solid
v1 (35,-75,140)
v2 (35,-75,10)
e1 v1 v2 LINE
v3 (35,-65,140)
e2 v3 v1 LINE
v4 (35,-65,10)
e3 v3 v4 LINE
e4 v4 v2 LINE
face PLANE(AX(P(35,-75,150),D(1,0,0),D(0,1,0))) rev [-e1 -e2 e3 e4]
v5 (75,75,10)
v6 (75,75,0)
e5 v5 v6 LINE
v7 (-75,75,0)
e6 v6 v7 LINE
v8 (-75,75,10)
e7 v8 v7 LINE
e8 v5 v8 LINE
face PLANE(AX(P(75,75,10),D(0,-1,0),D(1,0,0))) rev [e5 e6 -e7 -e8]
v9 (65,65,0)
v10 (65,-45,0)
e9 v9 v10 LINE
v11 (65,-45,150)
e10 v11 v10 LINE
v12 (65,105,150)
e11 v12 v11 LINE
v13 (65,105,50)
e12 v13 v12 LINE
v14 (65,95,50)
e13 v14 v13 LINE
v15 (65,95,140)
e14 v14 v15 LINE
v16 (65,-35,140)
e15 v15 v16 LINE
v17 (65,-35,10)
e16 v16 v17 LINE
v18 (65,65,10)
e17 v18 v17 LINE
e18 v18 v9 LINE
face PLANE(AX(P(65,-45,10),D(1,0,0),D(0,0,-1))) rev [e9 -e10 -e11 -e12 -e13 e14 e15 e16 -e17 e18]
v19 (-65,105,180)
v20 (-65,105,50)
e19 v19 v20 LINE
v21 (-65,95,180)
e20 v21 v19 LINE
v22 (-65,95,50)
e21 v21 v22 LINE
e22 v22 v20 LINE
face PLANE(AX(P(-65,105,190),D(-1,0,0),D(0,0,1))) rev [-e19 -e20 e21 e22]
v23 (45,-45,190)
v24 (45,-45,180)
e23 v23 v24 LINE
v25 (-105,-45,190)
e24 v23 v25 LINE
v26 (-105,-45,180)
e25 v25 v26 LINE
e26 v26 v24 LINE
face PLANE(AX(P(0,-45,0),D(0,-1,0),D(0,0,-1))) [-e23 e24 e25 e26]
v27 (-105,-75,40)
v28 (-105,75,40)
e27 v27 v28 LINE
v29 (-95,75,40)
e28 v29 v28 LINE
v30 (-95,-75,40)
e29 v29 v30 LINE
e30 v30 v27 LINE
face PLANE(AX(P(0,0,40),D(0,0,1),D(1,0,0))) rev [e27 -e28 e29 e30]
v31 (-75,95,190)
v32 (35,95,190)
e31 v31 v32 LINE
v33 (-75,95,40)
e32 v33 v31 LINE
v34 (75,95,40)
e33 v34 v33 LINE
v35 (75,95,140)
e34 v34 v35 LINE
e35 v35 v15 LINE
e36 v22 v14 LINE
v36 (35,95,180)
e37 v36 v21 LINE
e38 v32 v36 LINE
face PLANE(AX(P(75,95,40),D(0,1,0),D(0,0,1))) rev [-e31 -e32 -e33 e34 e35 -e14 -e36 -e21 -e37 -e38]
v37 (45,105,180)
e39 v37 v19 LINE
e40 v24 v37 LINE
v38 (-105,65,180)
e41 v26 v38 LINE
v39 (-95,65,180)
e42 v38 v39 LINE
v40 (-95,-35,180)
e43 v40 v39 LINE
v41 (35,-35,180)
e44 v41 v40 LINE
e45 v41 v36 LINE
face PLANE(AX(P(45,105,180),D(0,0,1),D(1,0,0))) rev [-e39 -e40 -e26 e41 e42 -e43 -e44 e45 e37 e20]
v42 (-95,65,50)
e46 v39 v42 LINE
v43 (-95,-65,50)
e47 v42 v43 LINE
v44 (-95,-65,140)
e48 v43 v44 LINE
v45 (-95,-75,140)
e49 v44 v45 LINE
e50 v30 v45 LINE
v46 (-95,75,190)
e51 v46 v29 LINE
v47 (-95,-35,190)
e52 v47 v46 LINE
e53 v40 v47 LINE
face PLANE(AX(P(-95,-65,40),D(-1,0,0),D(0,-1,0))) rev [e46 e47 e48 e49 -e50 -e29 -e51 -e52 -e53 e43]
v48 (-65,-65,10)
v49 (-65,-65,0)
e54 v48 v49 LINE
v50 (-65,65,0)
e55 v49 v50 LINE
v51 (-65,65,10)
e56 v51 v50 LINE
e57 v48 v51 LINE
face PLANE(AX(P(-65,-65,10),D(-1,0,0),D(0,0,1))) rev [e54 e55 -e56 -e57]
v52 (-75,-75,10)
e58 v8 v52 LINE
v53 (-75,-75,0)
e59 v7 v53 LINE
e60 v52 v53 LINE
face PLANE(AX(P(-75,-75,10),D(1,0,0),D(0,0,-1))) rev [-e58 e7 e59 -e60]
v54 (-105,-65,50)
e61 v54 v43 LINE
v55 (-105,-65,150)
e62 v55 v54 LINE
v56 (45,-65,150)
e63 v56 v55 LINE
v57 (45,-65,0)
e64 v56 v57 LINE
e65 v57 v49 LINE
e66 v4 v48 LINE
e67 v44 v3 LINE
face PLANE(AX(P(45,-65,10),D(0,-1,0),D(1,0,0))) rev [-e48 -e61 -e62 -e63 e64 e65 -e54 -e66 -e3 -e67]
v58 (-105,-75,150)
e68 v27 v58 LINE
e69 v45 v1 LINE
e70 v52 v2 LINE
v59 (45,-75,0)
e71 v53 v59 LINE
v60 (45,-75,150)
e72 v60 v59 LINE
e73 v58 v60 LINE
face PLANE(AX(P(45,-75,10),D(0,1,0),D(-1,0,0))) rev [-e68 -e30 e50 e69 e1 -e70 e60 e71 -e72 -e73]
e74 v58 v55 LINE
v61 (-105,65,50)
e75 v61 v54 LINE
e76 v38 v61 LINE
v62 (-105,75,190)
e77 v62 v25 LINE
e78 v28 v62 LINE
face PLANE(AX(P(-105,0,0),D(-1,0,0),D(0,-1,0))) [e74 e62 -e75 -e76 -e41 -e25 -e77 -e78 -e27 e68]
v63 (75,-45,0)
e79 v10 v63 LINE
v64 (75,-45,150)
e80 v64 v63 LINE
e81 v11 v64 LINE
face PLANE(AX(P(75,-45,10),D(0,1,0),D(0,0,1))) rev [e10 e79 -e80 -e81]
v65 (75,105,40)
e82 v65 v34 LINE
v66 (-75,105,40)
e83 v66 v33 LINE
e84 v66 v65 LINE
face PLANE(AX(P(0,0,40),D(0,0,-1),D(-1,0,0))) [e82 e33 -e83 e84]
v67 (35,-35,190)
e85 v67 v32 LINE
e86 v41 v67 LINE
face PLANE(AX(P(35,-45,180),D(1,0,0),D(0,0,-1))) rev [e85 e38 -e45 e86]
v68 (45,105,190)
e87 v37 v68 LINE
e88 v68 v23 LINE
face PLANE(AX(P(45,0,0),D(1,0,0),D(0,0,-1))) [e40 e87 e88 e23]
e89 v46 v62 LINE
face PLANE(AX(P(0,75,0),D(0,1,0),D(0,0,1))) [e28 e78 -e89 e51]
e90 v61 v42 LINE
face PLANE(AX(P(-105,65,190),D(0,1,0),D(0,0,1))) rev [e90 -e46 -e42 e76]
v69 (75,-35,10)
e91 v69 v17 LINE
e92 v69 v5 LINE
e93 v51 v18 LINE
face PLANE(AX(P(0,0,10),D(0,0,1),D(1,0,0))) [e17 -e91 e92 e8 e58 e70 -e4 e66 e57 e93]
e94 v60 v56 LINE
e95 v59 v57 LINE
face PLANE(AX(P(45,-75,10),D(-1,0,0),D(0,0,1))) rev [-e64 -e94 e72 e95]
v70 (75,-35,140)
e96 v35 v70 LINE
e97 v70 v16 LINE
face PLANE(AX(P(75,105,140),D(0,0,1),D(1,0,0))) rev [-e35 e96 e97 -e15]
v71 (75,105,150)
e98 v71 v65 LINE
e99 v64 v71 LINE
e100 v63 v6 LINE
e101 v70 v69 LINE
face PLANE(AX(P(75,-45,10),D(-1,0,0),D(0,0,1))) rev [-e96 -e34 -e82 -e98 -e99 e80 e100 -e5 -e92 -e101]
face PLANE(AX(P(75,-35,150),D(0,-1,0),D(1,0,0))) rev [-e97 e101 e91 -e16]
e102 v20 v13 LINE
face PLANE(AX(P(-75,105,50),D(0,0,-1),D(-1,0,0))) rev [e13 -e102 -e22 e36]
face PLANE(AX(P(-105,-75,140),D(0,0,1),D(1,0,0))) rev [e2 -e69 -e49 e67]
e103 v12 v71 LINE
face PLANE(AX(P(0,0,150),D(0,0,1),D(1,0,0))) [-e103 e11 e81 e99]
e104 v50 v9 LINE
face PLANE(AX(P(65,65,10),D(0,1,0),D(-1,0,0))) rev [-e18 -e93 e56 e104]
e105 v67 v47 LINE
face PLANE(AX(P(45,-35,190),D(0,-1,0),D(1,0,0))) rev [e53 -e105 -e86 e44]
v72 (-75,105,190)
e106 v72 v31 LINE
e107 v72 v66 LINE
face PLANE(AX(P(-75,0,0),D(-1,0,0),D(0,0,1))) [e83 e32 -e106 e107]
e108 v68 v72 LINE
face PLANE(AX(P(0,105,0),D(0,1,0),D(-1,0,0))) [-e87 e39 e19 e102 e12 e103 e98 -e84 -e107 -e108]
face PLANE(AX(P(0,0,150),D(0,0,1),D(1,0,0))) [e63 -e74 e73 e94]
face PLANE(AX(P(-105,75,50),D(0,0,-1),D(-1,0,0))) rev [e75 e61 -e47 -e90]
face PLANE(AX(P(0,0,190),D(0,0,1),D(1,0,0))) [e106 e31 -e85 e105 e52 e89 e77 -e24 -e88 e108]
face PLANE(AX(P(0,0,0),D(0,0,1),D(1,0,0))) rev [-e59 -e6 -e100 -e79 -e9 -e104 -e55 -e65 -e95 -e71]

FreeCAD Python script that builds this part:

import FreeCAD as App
import Part
import Sketcher
Q = App.Units.Quantity

doc = App.newDocument("Part")
body = doc.addObject("PartDesign::Body", "Body")

# Sketch on XY plane
sketch1 = doc.addObject("Sketcher::SketchObject", "Sketch")
body.addObject(sketch1)
sketch1.AttachmentSupport = (doc.XY_Plane, [""])
sketch1.MapMode = "FlatFace"
sketch1.addGeometry([
    Part.LineSegment(App.Vector(-75, -75, 0), App.Vector(45, -75, 0)),  # 0
    Part.LineSegment(App.Vector(45, -75, 0), App.Vector(45, -65, 0)),  # 1
    Part.LineSegment(App.Vector(45, -65, 0), App.Vector(-65, -65, 0)),  # 2
    Part.LineSegment(App.Vector(-65, -65, 0), App.Vector(-65, 65, 0)),  # 3
    Part.LineSegment(App.Vector(-65, 65, 0), App.Vector(65, 65, 0)),  # 4
    Part.LineSegment(App.Vector(65, 65, 0), App.Vector(65, -45, 0)),  # 5
    Part.LineSegment(App.Vector(65, -45, 0), App.Vector(75, -45, 0)),  # 6
    Part.LineSegment(App.Vector(75, -45, 0), App.Vector(75, 75, 0)),  # 7
    Part.LineSegment(App.Vector(75, 75, 0), App.Vector(-75, 75, 0)),  # 8
    Part.LineSegment(App.Vector(-75, 75, 0), App.Vector(-75, -75, 0)),  # 9
], False)
sketch1.addConstraint([
    Sketcher.Constraint("Coincident", 0, 2, 1, 1),
    Sketcher.Constraint("Coincident", 1, 2, 2, 1),
    Sketcher.Constraint("Coincident", 2, 2, 3, 1),
    Sketcher.Constraint("Coincident", 3, 2, 4, 1),
    Sketcher.Constraint("Coincident", 4, 2, 5, 1),
    Sketcher.Constraint("Coincident", 5, 2, 6, 1),
    Sketcher.Constraint("Coincident", 6, 2, 7, 1),
    Sketcher.Constraint("Coincident", 7, 2, 8, 1),
    Sketcher.Constraint("Coincident", 8, 2, 9, 1),
    Sketcher.Constraint("Coincident", 9, 2, 0, 1),
    Sketcher.Constraint("Horizontal", 0),
    Sketcher.Constraint("Vertical", 1),
    Sketcher.Constraint("Horizontal", 2),
    Sketcher.Constraint("Vertical", 3),
    Sketcher.Constraint("Horizontal", 4),
    Sketcher.Constraint("Vertical", 5),
    Sketcher.Constraint("Horizontal", 6),
    Sketcher.Constraint("Vertical", 7),
    Sketcher.Constraint("Horizontal", 8),
    Sketcher.Constraint("Vertical", 9),
    Sketcher.Constraint("Symmetric", 2, 2, 4, 2, -1, 1),
    Sketcher.Constraint("Symmetric", 7, 2, 9, 2, -1, 1),
    Sketcher.Constraint("Equal", 6, 1),
    Sketcher.Constraint("Equal", 4, 3),
    Sketcher.Constraint("Equal", 2, 5),
    Sketcher.Constraint("DistanceX", 0, 1, 0, 2, Q("120 mm")),
    Sketcher.Constraint("DistanceX", 2, 2, 2, 1, Q("110 mm")),
    Sketcher.Constraint("DistanceX", 4, 1, 4, 2, Q("130 mm")),
])
pad1 = doc.addObject("PartDesign::Pad", "Pad")
body.addObject(pad1)
pad1.Profile = sketch1
pad1.Length = 10

# Sketch on XY plane
sketch2 = doc.addObject("Sketcher::SketchObject", "Sketch001")
body.addObject(sketch2)
sketch2.AttachmentSupport = (doc.XY_Plane, [""])
sketch2.MapMode = "FlatFace"
sketch2.AttachmentOffset = App.Placement(App.Vector(0, 0, 10), App.Rotation())
sketch2.addGeometry([
    Part.LineSegment(App.Vector(35, -65, 0), App.Vector(35, -75, 0)),
    Part.LineSegment(App.Vector(35, -75, 0), App.Vector(45, -75, 0)),
    Part.LineSegment(App.Vector(45, -75, 0), App.Vector(45, -65, 0)),
    Part.LineSegment(App.Vector(45, -65, 0), App.Vector(35, -65, 0)),
], False)
sketch2.addConstraint([
    Sketcher.Constraint("Coincident", 0, 2, 1, 1),
    Sketcher.Constraint("Coincident", 1, 2, 2, 1),
    Sketcher.Constraint("Coincident", 2, 2, 3, 1),
    Sketcher.Constraint("Coincident", 3, 2, 0, 1),
    Sketcher.Constraint("Vertical", 0),
    Sketcher.Constraint("Horizontal", 1),
    Sketcher.Constraint("Vertical", 2),
    Sketcher.Constraint("Horizontal", 3),
    Sketcher.Constraint("Equal", 3, 0),
    Sketcher.Constraint("DistanceX", 1, 1, 1, 2, Q("10 mm")),
    Sketcher.Constraint("DistanceX", -1, 1, 0, 2, Q("35 mm")),
    Sketcher.Constraint("DistanceY", 0, 2, -1, 1, Q("75 mm")),
])
pad2 = doc.addObject("PartDesign::Pad", "Pad001")
body.addObject(pad2)
pad2.Profile = sketch2
pad2.Length = 140

# Sketch on YZ plane
sketch3 = doc.addObject("Sketcher::SketchObject", "Sketch002")
body.addObject(sketch3)
sketch3.AttachmentSupport = (doc.YZ_Plane, [""])
sketch3.MapMode = "FlatFace"
sketch3.AttachmentOffset = App.Placement(App.Vector(0, 0, 35), App.Rotation())
sketch3.addGeometry([
    Part.LineSegment(App.Vector(-65, 140, 0), App.Vector(-75, 140, 0)),
    Part.LineSegment(App.Vector(-75, 140, 0), App.Vector(-75, 150, 0)),
    Part.LineSegment(App.Vector(-75, 150, 0), App.Vector(-65, 150, 0)),
    Part.LineSegment(App.Vector(-65, 150, 0), App.Vector(-65, 140, 0)),
], False)
sketch3.addConstraint([
    Sketcher.Constraint("Coincident", 0, 2, 1, 1),
    Sketcher.Constraint("Coincident", 1, 2, 2, 1),
    Sketcher.Constraint("Coincident", 2, 2, 3, 1),
    Sketcher.Constraint("Coincident", 3, 2, 0, 1),
    Sketcher.Constraint("Horizontal", 0),
    Sketcher.Constraint("Vertical", 1),
    Sketcher.Constraint("Horizontal", 2),
    Sketcher.Constraint("Vertical", 3),
    Sketcher.Constraint("Equal", 2, 1),
    Sketcher.Constraint("DistanceX", 0, 2, 0, 1, Q("10 mm")),
    Sketcher.Constraint("DistanceX", 0, 2, -1, 1, Q("75 mm")),
    Sketcher.Constraint("DistanceY", -1, 1, 0, 2, Q("140 mm")),
])
pad3 = doc.addObject("PartDesign::Pad", "Pad002")
body.addObject(pad3)
pad3.Profile = sketch3
pad3.Length = 140
pad3.Reversed = True

# Sketch on XY plane
sketch4 = doc.addObject("Sketcher::SketchObject", "Sketch003")
body.addObject(sketch4)
sketch4.AttachmentSupport = (doc.XY_Plane, [""])
sketch4.MapMode = "FlatFace"
sketch4.AttachmentOffset = App.Placement(App.Vector(0, 0, 140), App.Rotation())
sketch4.addGeometry([
    Part.LineSegment(App.Vector(-95, -65, 0), App.Vector(-95, -75, 0)),
    Part.LineSegment(App.Vector(-95, -75, 0), App.Vector(-105, -75, 0)),
    Part.LineSegment(App.Vector(-105, -75, 0), App.Vector(-105, -65, 0)),
    Part.LineSegment(App.Vector(-105, -65, 0), App.Vector(-95, -65, 0)),
], False)
sketch4.addConstraint([
    Sketcher.Constraint("Coincident", 0, 2, 1, 1),
    Sketcher.Constraint("Coincident", 1, 2, 2, 1),
    Sketcher.Constraint("Coincident", 2, 2, 3, 1),
    Sketcher.Constraint("Coincident", 3, 2, 0, 1),
    Sketcher.Constraint("Vertical", 0),
    Sketcher.Constraint("Horizontal", 1),
    Sketcher.Constraint("Vertical", 2),
    Sketcher.Constraint("Horizontal", 3),
    Sketcher.Constraint("Equal", 3, 0),
    Sketcher.Constraint("DistanceX", 1, 2, 1, 1, Q("10 mm")),
    Sketcher.Constraint("DistanceX", 0, 2, -1, 1, Q("95 mm")),
    Sketcher.Constraint("DistanceY", 0, 2, -1, 1, Q("75 mm")),
])
pad4 = doc.addObject("PartDesign::Pad", "Pad003")
body.addObject(pad4)
pad4.Profile = sketch4
pad4.Length = 100
pad4.Reversed = True

# Sketch on XZ plane
sketch5 = doc.addObject("Sketcher::SketchObject", "Sketch004")
body.addObject(sketch5)
sketch5.AttachmentSupport = (doc.XZ_Plane, [""])
sketch5.MapMode = "FlatFace"
sketch5.AttachmentOffset = App.Placement(App.Vector(0, 0, 65), App.Rotation())
sketch5.addGeometry([
    Part.LineSegment(App.Vector(-105, 40, 0), App.Vector(-105, 50, 0)),
    Part.LineSegment(App.Vector(-105, 50, 0), App.Vector(-95, 50, 0)),
    Part.LineSegment(App.Vector(-95, 50, 0), App.Vector(-95, 40, 0)),
    Part.LineSegment(App.Vector(-95, 40, 0), App.Vector(-105, 40, 0)),
], False)
sketch5.addConstraint([
    Sketcher.Constraint("Coincident", 0, 2, 1, 1),
    Sketcher.Constraint("Coincident", 1, 2, 2, 1),
    Sketcher.Constraint("Coincident", 2, 2, 3, 1),
    Sketcher.Constraint("Coincident", 3, 2, 0, 1),
    Sketcher.Constraint("Vertical", 0),
    Sketcher.Constraint("Horizontal", 1),
    Sketcher.Constraint("Vertical", 2),
    Sketcher.Constraint("Horizontal", 3),
    Sketcher.Constraint("Equal", 3, 0),
    Sketcher.Constraint("DistanceX", 1, 1, 1, 2, Q("10 mm")),
    Sketcher.Constraint("DistanceX", 0, 2, -1, 1, Q("105 mm")),
    Sketcher.Constraint("DistanceY", -1, 1, 0, 2, Q("50 mm")),
])
pad5 = doc.addObject("PartDesign::Pad", "Pad004")
body.addObject(pad5)
pad5.Profile = sketch5
pad5.Length = 140
pad5.Reversed = True

# Sketch on XY plane
sketch6 = doc.addObject("Sketcher::SketchObject", "Sketch005")
body.addObject(sketch6)
sketch6.AttachmentSupport = (doc.XY_Plane, [""])
sketch6.MapMode = "FlatFace"
sketch6.AttachmentOffset = App.Placement(App.Vector(0, 0, 10), App.Rotation())
sketch6.addGeometry([
    Part.LineSegment(App.Vector(65, -35, 0), App.Vector(65, -45, 0)),
    Part.LineSegment(App.Vector(65, -45, 0), App.Vector(75, -45, 0)),
    Part.LineSegment(App.Vector(75, -45, 0), App.Vector(75, -35, 0)),
    Part.LineSegment(App.Vector(75, -35, 0), App.Vector(65, -35, 0)),
], False)
sketch6.addConstraint([
    Sketcher.Constraint("Coincident", 0, 2, 1, 1),
    Sketcher.Constraint("Coincident", 1, 2, 2, 1),
    Sketcher.Constraint("Coincident", 2, 2, 3, 1),
    Sketcher.Constraint("Coincident", 3, 2, 0, 1),
    Sketcher.Constraint("Vertical", 0),
    Sketcher.Constraint("Horizontal", 1),
    Sketcher.Constraint("Vertical", 2),
    Sketcher.Constraint("Horizontal", 3),
    Sketcher.Constraint("Equal", 3, 0),
    Sketcher.Constraint("DistanceX", 1, 1, 1, 2, Q("10 mm")),
    Sketcher.Constraint("DistanceX", -1, 1, 0, 2, Q("65 mm")),
    Sketcher.Constraint("DistanceY", 0, 2, -1, 1, Q("45 mm")),
])
pad6 = doc.addObject("PartDesign::Pad", "Pad005")
body.addObject(pad6)
pad6.Profile = sketch6
pad6.Length = 140

# Sketch on XZ plane
sketch7 = doc.addObject("Sketcher::SketchObject", "Sketch006")
body.addObject(sketch7)
sketch7.AttachmentSupport = (doc.XZ_Plane, [""])
sketch7.MapMode = "FlatFace"
sketch7.AttachmentOffset = App.Placement(App.Vector(0, 0, 35), App.Rotation())
sketch7.addGeometry([
    Part.LineSegment(App.Vector(65, 140, 0), App.Vector(65, 150, 0)),
    Part.LineSegment(App.Vector(65, 150, 0), App.Vector(75, 150, 0)),
    Part.LineSegment(App.Vector(75, 150, 0), App.Vector(75, 140, 0)),
    Part.LineSegment(App.Vector(75, 140, 0), App.Vector(65, 140, 0)),
], False)
sketch7.addConstraint([
    Sketcher.Constraint("Coincident", 0, 2, 1, 1),
    Sketcher.Constraint("Coincident", 1, 2, 2, 1),
    Sketcher.Constraint("Coincident", 2, 2, 3, 1),
    Sketcher.Constraint("Coincident", 3, 2, 0, 1),
    Sketcher.Constraint("Vertical", 0),
    Sketcher.Constraint("Horizontal", 1),
    Sketcher.Constraint("Vertical", 2),
    Sketcher.Constraint("Horizontal", 3),
    Sketcher.Constraint("Equal", 3, 0),
    Sketcher.Constraint("DistanceX", 1, 1, 1, 2, Q("10 mm")),
    Sketcher.Constraint("DistanceX", -1, 1, 0, 2, Q("65 mm")),
    Sketcher.Constraint("DistanceY", -1, 1, 0, 2, Q("150 mm")),
])
pad7 = doc.addObject("PartDesign::Pad", "Pad006")
body.addObject(pad7)
pad7.Profile = sketch7
pad7.Length = 140
pad7.Reversed = True

# Sketch on XY plane
sketch8 = doc.addObject("Sketcher::SketchObject", "Sketch007")
body.addObject(sketch8)
sketch8.AttachmentSupport = (doc.XY_Plane, [""])
sketch8.MapMode = "FlatFace"
sketch8.AttachmentOffset = App.Placement(App.Vector(0, 0, 140), App.Rotation())
sketch8.addGeometry([
    Part.LineSegment(App.Vector(75, 105, 0), App.Vector(75, 95, 0)),
    Part.LineSegment(App.Vector(75, 95, 0), App.Vector(65, 95, 0)),
    Part.LineSegment(App.Vector(65, 95, 0), App.Vector(65, 105, 0)),
    Part.LineSegment(App.Vector(65, 105, 0), App.Vector(75, 105, 0)),
], False)
sketch8.addConstraint([
    Sketcher.Constraint("Coincident", 0, 2, 1, 1),
    Sketcher.Constraint("Coincident", 1, 2, 2, 1),
    Sketcher.Constraint("Coincident", 2, 2, 3, 1),
    Sketcher.Constraint("Coincident", 3, 2, 0, 1),
    Sketcher.Constraint("Vertical", 0),
    Sketcher.Constraint("Horizontal", 1),
    Sketcher.Constraint("Vertical", 2),
    Sketcher.Constraint("Horizontal", 3),
    Sketcher.Constraint("Equal", 3, 0),
    Sketcher.Constraint("DistanceX", 1, 2, 1, 1, Q("10 mm")),
    Sketcher.Constraint("DistanceX", -1, 1, 0, 2, Q("75 mm")),
    Sketcher.Constraint("DistanceY", -1, 1, 0, 2, Q("95 mm")),
])
pad8 = doc.addObject("PartDesign::Pad", "Pad007")
body.addObject(pad8)
pad8.Profile = sketch8
pad8.Length = 100
pad8.Reversed = True

# Sketch on YZ plane
sketch9 = doc.addObject("Sketcher::SketchObject", "Sketch008")
body.addObject(sketch9)
sketch9.AttachmentSupport = (doc.YZ_Plane, [""])
sketch9.MapMode = "FlatFace"
sketch9.AttachmentOffset = App.Placement(App.Vector(0, 0, 65), App.Rotation())
sketch9.addGeometry([
    Part.LineSegment(App.Vector(105, 40, 0), App.Vector(95, 40, 0)),
    Part.LineSegment(App.Vector(95, 40, 0), App.Vector(95, 50, 0)),
    Part.LineSegment(App.Vector(95, 50, 0), App.Vector(105, 50, 0)),
    Part.LineSegment(App.Vector(105, 50, 0), App.Vector(105, 40, 0)),
], False)
sketch9.addConstraint([
    Sketcher.Constraint("Coincident", 0, 2, 1, 1),
    Sketcher.Constraint("Coincident", 1, 2, 2, 1),
    Sketcher.Constraint("Coincident", 2, 2, 3, 1),
    Sketcher.Constraint("Coincident", 3, 2, 0, 1),
    Sketcher.Constraint("Horizontal", 0),
    Sketcher.Constraint("Vertical", 1),
    Sketcher.Constraint("Horizontal", 2),
    Sketcher.Constraint("Vertical", 3),
    Sketcher.Constraint("Equal", 2, 1),
    Sketcher.Constraint("DistanceX", 0, 2, 0, 1, Q("10 mm")),
    Sketcher.Constraint("DistanceX", -1, 1, 0, 2, Q("95 mm")),
    Sketcher.Constraint("DistanceY", -1, 1, 0, 2, Q("40 mm")),
])
pad9 = doc.addObject("PartDesign::Pad", "Pad008")
body.addObject(pad9)
pad9.Profile = sketch9
pad9.Length = 140
pad9.Reversed = True

# Sketch on XY plane
sketch10 = doc.addObject("Sketcher::SketchObject", "Sketch009")
body.addObject(sketch10)
sketch10.AttachmentSupport = (doc.XY_Plane, [""])
sketch10.MapMode = "FlatFace"
sketch10.AttachmentOffset = App.Placement(App.Vector(0, 0, 50), App.Rotation())
sketch10.addGeometry([
    Part.LineSegment(App.Vector(-75, 105, 0), App.Vector(-75, 95, 0)),
    Part.LineSegment(App.Vector(-75, 95, 0), App.Vector(-65, 95, 0)),
    Part.LineSegment(App.Vector(-65, 95, 0), App.Vector(-65, 105, 0)),
    Part.LineSegment(App.Vector(-65, 105, 0), App.Vector(-75, 105, 0)),
], False)
sketch10.addConstraint([
    Sketcher.Constraint("Coincident", 0, 2, 1, 1),
    Sketcher.Constraint("Coincident", 1, 2, 2, 1),
    Sketcher.Constraint("Coincident", 2, 2, 3, 1),
    Sketcher.Constraint("Coincident", 3, 2, 0, 1),
    Sketcher.Constraint("Vertical", 0),
    Sketcher.Constraint("Horizontal", 1),
    Sketcher.Constraint("Vertical", 2),
    Sketcher.Constraint("Horizontal", 3),
    Sketcher.Constraint("Equal", 3, 0),
    Sketcher.Constraint("DistanceX", 1, 1, 1, 2, Q("10 mm")),
    Sketcher.Constraint("DistanceX", 0, 2, -1, 1, Q("75 mm")),
    Sketcher.Constraint("DistanceY", -1, 1, 0, 2, Q("95 mm")),
])
pad10 = doc.addObject("PartDesign::Pad", "Pad009")
body.addObject(pad10)
pad10.Profile = sketch10
pad10.Length = 140

# Sketch on YZ plane
sketch11 = doc.addObject("Sketcher::SketchObject", "Sketch010")
body.addObject(sketch11)
sketch11.AttachmentSupport = (doc.YZ_Plane, [""])
sketch11.MapMode = "FlatFace"
sketch11.AttachmentOffset = App.Placement(App.Vector(0, 0, -65), App.Rotation())
sketch11.addGeometry([
    Part.LineSegment(App.Vector(105, 190, 0), App.Vector(95, 190, 0)),
    Part.LineSegment(App.Vector(95, 190, 0), App.Vector(95, 180, 0)),
    Part.LineSegment(App.Vector(95, 180, 0), App.Vector(105, 180, 0)),
    Part.LineSegment(App.Vector(105, 180, 0), App.Vector(105, 190, 0)),
], False)
sketch11.addConstraint([
    Sketcher.Constraint("Coincident", 0, 2, 1, 1),
    Sketcher.Constraint("Coincident", 1, 2, 2, 1),
    Sketcher.Constraint("Coincident", 2, 2, 3, 1),
    Sketcher.Constraint("Coincident", 3, 2, 0, 1),
    Sketcher.Constraint("Horizontal", 0),
    Sketcher.Constraint("Vertical", 1),
    Sketcher.Constraint("Horizontal", 2),
    Sketcher.Constraint("Vertical", 3),
    Sketcher.Constraint("Equal", 2, 1),
    Sketcher.Constraint("DistanceX", 0, 2, 0, 1, Q("10 mm")),
    Sketcher.Constraint("DistanceX", -1, 1, 0, 2, Q("95 mm")),
    Sketcher.Constraint("DistanceY", -1, 1, 0, 2, Q("190 mm")),
])
pad11 = doc.addObject("PartDesign::Pad", "Pad010")
body.addObject(pad11)
pad11.Profile = sketch11
pad11.Length = 110

# Sketch on XY plane
sketch12 = doc.addObject("Sketcher::SketchObject", "Sketch011")
body.addObject(sketch12)
sketch12.AttachmentSupport = (doc.XY_Plane, [""])
sketch12.MapMode = "FlatFace"
sketch12.AttachmentOffset = App.Placement(App.Vector(0, 0, 50), App.Rotation())
sketch12.addGeometry([
    Part.LineSegment(App.Vector(-105, 75, 0), App.Vector(-105, 65, 0)),
    Part.LineSegment(App.Vector(-105, 65, 0), App.Vector(-95, 65, 0)),
    Part.LineSegment(App.Vector(-95, 65, 0), App.Vector(-95, 75, 0)),
    Part.LineSegment(App.Vector(-95, 75, 0), App.Vector(-105, 75, 0)),
], False)
sketch12.addConstraint([
    Sketcher.Constraint("Coincident", 0, 2, 1, 1),
    Sketcher.Constraint("Coincident", 1, 2, 2, 1),
    Sketcher.Constraint("Coincident", 2, 2, 3, 1),
    Sketcher.Constraint("Coincident", 3, 2, 0, 1),
    Sketcher.Constraint("Vertical", 0),
    Sketcher.Constraint("Horizontal", 1),
    Sketcher.Constraint("Vertical", 2),
    Sketcher.Constraint("Horizontal", 3),
    Sketcher.Constraint("Equal", 3, 0),
    Sketcher.Constraint("DistanceX", 1, 1, 1, 2, Q("10 mm")),
    Sketcher.Constraint("DistanceX", 0, 2, -1, 1, Q("105 mm")),
    Sketcher.Constraint("DistanceY", -1, 1, 0, 2, Q("65 mm")),
])
pad12 = doc.addObject("PartDesign::Pad", "Pad011")
body.addObject(pad12)
pad12.Profile = sketch12
pad12.Length = 140

# Sketch on XZ plane
sketch13 = doc.addObject("Sketcher::SketchObject", "Sketch012")
body.addObject(sketch13)
sketch13.AttachmentSupport = (doc.XZ_Plane, [""])
sketch13.MapMode = "FlatFace"
sketch13.AttachmentOffset = App.Placement(App.Vector(0, 0, -65), App.Rotation())
sketch13.addGeometry([
    Part.LineSegment(App.Vector(-105, 190, 0), App.Vector(-105, 180, 0)),
    Part.LineSegment(App.Vector(-105, 180, 0), App.Vector(-95, 180, 0)),
    Part.LineSegment(App.Vector(-95, 180, 0), App.Vector(-95, 190, 0)),
    Part.LineSegment(App.Vector(-95, 190, 0), App.Vector(-105, 190, 0)),
], False)
sketch13.addConstraint([
    Sketcher.Constraint("Coincident", 0, 2, 1, 1),
    Sketcher.Constraint("Coincident", 1, 2, 2, 1),
    Sketcher.Constraint("Coincident", 2, 2, 3, 1),
    Sketcher.Constraint("Coincident", 3, 2, 0, 1),
    Sketcher.Constraint("Vertical", 0),
    Sketcher.Constraint("Horizontal", 1),
    Sketcher.Constraint("Vertical", 2),
    Sketcher.Constraint("Horizontal", 3),
    Sketcher.Constraint("Equal", 3, 0),
    Sketcher.Constraint("DistanceX", 1, 1, 1, 2, Q("10 mm")),
    Sketcher.Constraint("DistanceX", 0, 2, -1, 1, Q("105 mm")),
    Sketcher.Constraint("DistanceY", -1, 1, 0, 2, Q("180 mm")),
])
pad13 = doc.addObject("PartDesign::Pad", "Pad012")
body.addObject(pad13)
pad13.Profile = sketch13
pad13.Length = 110

# Sketch on YZ plane
sketch14 = doc.addObject("Sketcher::SketchObject", "Sketch013")
body.addObject(sketch14)
sketch14.AttachmentSupport = (doc.YZ_Plane, [""])
sketch14.MapMode = "FlatFace"
sketch14.AttachmentOffset = App.Placement(App.Vector(0, 0, -95), App.Rotation())
sketch14.addGeometry([
    Part.LineSegment(App.Vector(-35, 190, 0), App.Vector(-45, 190, 0)),
    Part.LineSegment(App.Vector(-45, 190, 0), App.Vector(-45, 180, 0)),
    Part.LineSegment(App.Vector(-45, 180, 0), App.Vector(-35, 180, 0)),
    Part.LineSegment(App.Vector(-35, 180, 0), App.Vector(-35, 190, 0)),
], False)
sketch14.addConstraint([
    Sketcher.Constraint("Coincident", 0, 2, 1, 1),
    Sketcher.Constraint("Coincident", 1, 2, 2, 1),
    Sketcher.Constraint("Coincident", 2, 2, 3, 1),
    Sketcher.Constraint("Coincident", 3, 2, 0, 1),
    Sketcher.Constraint("Horizontal", 0),
    Sketcher.Constraint("Vertical", 1),
    Sketcher.Constraint("Horizontal", 2),
    Sketcher.Constraint("Vertical", 3),
    Sketcher.Constraint("Equal", 2, 1),
    Sketcher.Constraint("DistanceX", 0, 2, 0, 1, Q("10 mm")),
    Sketcher.Constraint("DistanceX", 0, 2, -1, 1, Q("45 mm")),
    Sketcher.Constraint("DistanceY", -1, 1, 0, 2, Q("190 mm")),
])
pad14 = doc.addObject("PartDesign::Pad", "Pad013")
body.addObject(pad14)
pad14.Profile = sketch14
pad14.Length = 140

# Sketch on XZ plane
sketch15 = doc.addObject("Sketcher::SketchObject", "Sketch014")
body.addObject(sketch15)
sketch15.AttachmentSupport = (doc.XZ_Plane, [""])
sketch15.MapMode = "FlatFace"
sketch15.AttachmentOffset = App.Placement(App.Vector(0, 0, -95), App.Rotation())
sketch15.addGeometry([
    Part.LineSegment(App.Vector(35, 190, 0), App.Vector(35, 180, 0)),
    Part.LineSegment(App.Vector(35, 180, 0), App.Vector(45, 180, 0)),
    Part.LineSegment(App.Vector(45, 180, 0), App.Vector(45, 190, 0)),
    Part.LineSegment(App.Vector(45, 190, 0), App.Vector(35, 190, 0)),
], False)
sketch15.addConstraint([
    Sketcher.Constraint("Coincident", 0, 2, 1, 1),
    Sketcher.Constraint("Coincident", 1, 2, 2, 1),
    Sketcher.Constraint("Coincident", 2, 2, 3, 1),
    Sketcher.Constraint("Coincident", 3, 2, 0, 1),
    Sketcher.Constraint("Vertical", 0),
    Sketcher.Constraint("Horizontal", 1),
    Sketcher.Constraint("Vertical", 2),
    Sketcher.Constraint("Horizontal", 3),
    Sketcher.Constraint("Equal", 3, 0),
    Sketcher.Constraint("DistanceX", 1, 1, 1, 2, Q("10 mm")),
    Sketcher.Constraint("DistanceX", -1, 1, 0, 2, Q("35 mm")),
    Sketcher.Constraint("DistanceY", -1, 1, 0, 2, Q("180 mm")),
])
pad15 = doc.addObject("PartDesign::Pad", "Pad014")
body.addObject(pad15)
pad15.Profile = sketch15
pad15.Length = 140

doc.recompute()
